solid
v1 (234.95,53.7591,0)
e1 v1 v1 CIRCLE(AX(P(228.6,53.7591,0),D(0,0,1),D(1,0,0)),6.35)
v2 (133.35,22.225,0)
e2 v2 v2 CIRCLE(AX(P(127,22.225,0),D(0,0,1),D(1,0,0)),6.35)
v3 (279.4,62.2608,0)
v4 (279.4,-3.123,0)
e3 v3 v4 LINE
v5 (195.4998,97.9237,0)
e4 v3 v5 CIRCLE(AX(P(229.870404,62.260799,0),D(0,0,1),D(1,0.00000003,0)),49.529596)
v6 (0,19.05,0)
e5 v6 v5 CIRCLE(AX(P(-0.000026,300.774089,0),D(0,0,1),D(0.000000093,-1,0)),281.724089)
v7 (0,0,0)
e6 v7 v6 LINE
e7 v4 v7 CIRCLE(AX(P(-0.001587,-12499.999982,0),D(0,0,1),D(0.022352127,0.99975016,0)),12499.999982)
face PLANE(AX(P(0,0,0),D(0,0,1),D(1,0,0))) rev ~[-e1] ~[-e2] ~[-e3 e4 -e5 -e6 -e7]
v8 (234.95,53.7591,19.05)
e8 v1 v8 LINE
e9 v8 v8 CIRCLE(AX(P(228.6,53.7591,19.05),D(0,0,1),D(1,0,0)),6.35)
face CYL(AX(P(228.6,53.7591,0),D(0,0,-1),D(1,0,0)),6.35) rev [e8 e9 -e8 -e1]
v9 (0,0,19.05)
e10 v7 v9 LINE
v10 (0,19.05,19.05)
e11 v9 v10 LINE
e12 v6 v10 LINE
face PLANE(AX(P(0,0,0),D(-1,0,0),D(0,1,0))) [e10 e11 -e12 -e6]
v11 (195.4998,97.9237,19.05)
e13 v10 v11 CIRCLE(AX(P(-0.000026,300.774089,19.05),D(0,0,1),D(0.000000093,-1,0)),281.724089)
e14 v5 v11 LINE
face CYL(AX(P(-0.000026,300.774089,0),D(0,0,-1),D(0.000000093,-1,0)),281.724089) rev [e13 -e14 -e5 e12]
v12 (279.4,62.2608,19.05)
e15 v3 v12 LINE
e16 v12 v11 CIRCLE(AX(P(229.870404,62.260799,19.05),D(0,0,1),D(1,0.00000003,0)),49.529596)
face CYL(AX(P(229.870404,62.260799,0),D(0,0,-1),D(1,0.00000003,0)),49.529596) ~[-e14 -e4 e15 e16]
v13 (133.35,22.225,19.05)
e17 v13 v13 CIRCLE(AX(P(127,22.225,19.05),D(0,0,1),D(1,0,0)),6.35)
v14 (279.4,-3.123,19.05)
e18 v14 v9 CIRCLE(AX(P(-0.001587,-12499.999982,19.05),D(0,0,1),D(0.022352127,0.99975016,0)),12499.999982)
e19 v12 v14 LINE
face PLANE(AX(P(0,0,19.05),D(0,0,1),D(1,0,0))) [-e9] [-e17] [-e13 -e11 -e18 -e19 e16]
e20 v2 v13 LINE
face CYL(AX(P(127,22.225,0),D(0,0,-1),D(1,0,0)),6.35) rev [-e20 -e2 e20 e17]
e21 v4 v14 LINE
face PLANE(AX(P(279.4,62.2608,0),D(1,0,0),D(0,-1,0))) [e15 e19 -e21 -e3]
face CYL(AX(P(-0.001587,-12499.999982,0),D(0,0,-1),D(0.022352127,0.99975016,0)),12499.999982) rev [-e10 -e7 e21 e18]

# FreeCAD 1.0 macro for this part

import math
import FreeCAD as App
import Part
import Sketcher
from FreeCAD import Vector
Q = App.Units.Quantity

doc = App.newDocument("Part")
body = doc.addObject("PartDesign::Body", "Body")

# Sketch on XY plane
sketch1 = body.newObject("Sketcher::SketchObject", "Sketch")
sketch1.AttachmentSupport = (doc.getObject("XY_Plane"), [""])
sketch1.MapMode = "FlatFace"
sketch1.addGeometry([
    Part.LineSegment(Vector(0, 19.05, 0), Vector(0, 0, 0)),  # 0
    Part.ArcOfCircle(Part.Circle(Vector(-0.004761, -12500.283946, 0), Vector(0, 0, 1), 12500.283946), math.radians(88.719225), math.radians(89.999978)),  # 1
    Part.LineSegment(Vector(279.4, -3.123, 0), Vector(279.4, 62.2608, 0)),  # 2
    Part.ArcOfCircle(Part.Circle(Vector(229.8704, 62.2608, 0), Vector(0, 0, 1), 49.5296), math.radians(0), math.radians(133.942864)),  # 3
    Part.ArcOfCircle(Part.Circle(Vector(0, 300.7741, 0), Vector(0, 0, 1), 281.7241), math.radians(-90), math.radians(-46.057137)),  # 4
    Part.Circle(Vector(127, 22.225, 0), Vector(0, 0, 1), 6.35),  # 5
    Part.Circle(Vector(228.6, 53.7591, 0), Vector(0, 0, 1), 6.35),  # 6
], False)
sketch1.addConstraint([
    Sketcher.Constraint("Coincident", 0, 2, 1, 2),
    Sketcher.Constraint("Coincident", 1, 1, 2, 1),
    Sketcher.Constraint("Tangent", 2, 2, 3, 1),
    Sketcher.Constraint("Tangent", 3, 2, 4, 2),
    Sketcher.Constraint("Coincident", 4, 1, 0, 1),
    Sketcher.Constraint("Vertical", 0),
    Sketcher.Constraint("Vertical", 2),
    Sketcher.Constraint("Coincident", 0, 2, -1, 1),
    Sketcher.Constraint("Equal", 5, 6),
    Sketcher.Constraint("PointOnObject", 4, 3, -2),
    Sketcher.Constraint("Diameter", 5, Q("0.5 in")),
    Sketcher.Constraint("DistanceX", -1, 1, 5, 3, Q("5 in")),
    Sketcher.Constraint("DistanceX", -1, 1, 2, 2, Q("11 in")),
    Sketcher.Constraint("DistanceX", 5, 3, 6, 3, Q("4 in")),
    Sketcher.Constraint("DistanceY", 0, 2, 0, 1, Q("0.75 in")),
    Sketcher.Constraint("Radius", 4, Q("11.0915 in")),
    Sketcher.Constraint("DistanceY", -1, 1, 5, 3, Q("0.875 in")),
    Sketcher.Constraint("DistanceY", 5, 3, 6, 3, Q("1.2415 in")),
    Sketcher.Constraint("Radius", 1, 12500.284),
    Sketcher.Constraint("Radius", 3, 49.5296),
    Sketcher.Constraint("DistanceY", 2, 1, 2, 2, 65.3838),
])
pad1 = body.newObject("PartDesign::Pad", "Pad")
pad1.Profile = sketch1
pad1.Length = Q("0.75 in")

doc.recompute()
